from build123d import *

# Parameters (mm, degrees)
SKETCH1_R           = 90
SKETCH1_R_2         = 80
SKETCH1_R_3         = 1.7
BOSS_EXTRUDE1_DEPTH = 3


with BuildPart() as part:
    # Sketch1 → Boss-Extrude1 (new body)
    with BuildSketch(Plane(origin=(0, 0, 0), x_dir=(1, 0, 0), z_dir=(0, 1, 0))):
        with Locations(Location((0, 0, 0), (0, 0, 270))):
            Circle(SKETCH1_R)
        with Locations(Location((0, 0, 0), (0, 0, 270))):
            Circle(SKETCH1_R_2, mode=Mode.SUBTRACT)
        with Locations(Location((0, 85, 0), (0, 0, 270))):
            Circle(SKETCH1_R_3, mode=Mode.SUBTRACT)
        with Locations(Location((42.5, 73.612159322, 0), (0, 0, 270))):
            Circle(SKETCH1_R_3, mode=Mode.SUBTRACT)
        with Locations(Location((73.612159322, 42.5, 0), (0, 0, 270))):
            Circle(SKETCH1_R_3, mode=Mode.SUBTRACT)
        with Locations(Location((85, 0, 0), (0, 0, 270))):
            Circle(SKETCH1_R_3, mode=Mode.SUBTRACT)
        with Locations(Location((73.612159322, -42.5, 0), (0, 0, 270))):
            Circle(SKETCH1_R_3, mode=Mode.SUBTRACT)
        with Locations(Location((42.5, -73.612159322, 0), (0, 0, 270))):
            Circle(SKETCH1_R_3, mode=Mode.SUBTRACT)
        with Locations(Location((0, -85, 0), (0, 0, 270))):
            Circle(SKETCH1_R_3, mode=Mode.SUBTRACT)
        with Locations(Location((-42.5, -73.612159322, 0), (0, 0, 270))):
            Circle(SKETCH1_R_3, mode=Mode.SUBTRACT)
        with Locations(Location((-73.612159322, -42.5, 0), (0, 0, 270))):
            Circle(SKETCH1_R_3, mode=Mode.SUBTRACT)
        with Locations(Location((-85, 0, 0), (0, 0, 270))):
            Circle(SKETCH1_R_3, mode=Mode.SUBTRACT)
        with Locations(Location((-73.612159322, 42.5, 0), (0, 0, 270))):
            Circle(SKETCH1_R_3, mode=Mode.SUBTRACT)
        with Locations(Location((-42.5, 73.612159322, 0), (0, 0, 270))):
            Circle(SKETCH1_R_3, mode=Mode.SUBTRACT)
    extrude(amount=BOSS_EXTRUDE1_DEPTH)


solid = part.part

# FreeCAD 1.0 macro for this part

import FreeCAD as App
import Part
import Sketcher

doc = App.newDocument("Part")
body = doc.addObject("PartDesign::Body", "Body")

# Sketch on XZ plane
sketch1 = body.newObject("Sketcher::SketchObject", "Sketch")
sketch1.AttachmentSupport = (doc.getObject("XZ_Plane"), [""])
sketch1.MapMode = "FlatFace"
sketch1.addGeometry(Part.Circle(App.Vector(0, 0, 0), App.Vector(0, 0, 1), 90), False)
sketch1.addGeometry(Part.Circle(App.Vector(-73.612159, -42.5, 0), App.Vector(0, 0, 1), 1.7), False)
sketch1.addGeometry(Part.Circle(App.Vector(-42.5, -73.612159, 0), App.Vector(0, 0, 1), 1.7), False)
sketch1.addGeometry(Part.Circle(App.Vector(0, -85, 0), App.Vector(0, 0, 1), 1.7), False)
sketch1.addGeometry(Part.Circle(App.Vector(-85, 0, 0), App.Vector(0, 0, 1), 1.7), False)
sketch1.addGeometry(Part.Circle(App.Vector(-73.612159, 42.5, 0), App.Vector(0, 0, 1), 1.7), False)
sketch1.addGeometry(Part.Circle(App.Vector(-42.5, 73.612159, 0), App.Vector(0, 0, 1), 1.7), False)
sketch1.addGeometry(Part.Circle(App.Vector(42.5, -73.612159, 0), App.Vector(0, 0, 1), 1.7), False)
sketch1.addGeometry(Part.Circle(App.Vector(73.612159, -42.5, 0), App.Vector(0, 0, 1), 1.7), False)
sketch1.addGeometry(Part.Circle(App.Vector(85, 0, 0), App.Vector(0, 0, 1), 1.7), False)
sketch1.addGeometry(Part.Circle(App.Vector(0, 0, 0), App.Vector(0, 0, 1), 80), False)
sketch1.addGeometry(Part.Circle(App.Vector(0, 85, 0), App.Vector(0, 0, 1), 1.7), False)
sketch1.addGeometry(Part.Circle(App.Vector(42.5, 73.612159, 0), App.Vector(0, 0, 1), 1.7), False)
sketch1.addGeometry(Part.Circle(App.Vector(73.612159, 42.5, 0), App.Vector(0, 0, 1), 1.7), False)
sketch1.addConstraint(Sketcher.Constraint("Coincident", 0, 3, -1, 1))
sketch1.addConstraint(Sketcher.Constraint("Coincident", 10, 3, -1, 1))
sketch1.addConstraint(Sketcher.Constraint("Equal", 1, 2))
sketch1.addConstraint(Sketcher.Constraint("Equal", 2, 3))
sketch1.addConstraint(Sketcher.Constraint("Equal", 3, 4))
sketch1.addConstraint(Sketcher.Constraint("Equal", 4, 5))
sketch1.addConstraint(Sketcher.Constraint("Equal", 5, 6))
sketch1.addConstraint(Sketcher.Constraint("Equal", 6, 7))
sketch1.addConstraint(Sketcher.Constraint("Equal", 7, 8))
sketch1.addConstraint(Sketcher.Constraint("Equal", 8, 9))
sketch1.addConstraint(Sketcher.Constraint("Equal", 9, 11))
sketch1.addConstraint(Sketcher.Constraint("Equal", 11, 12))
sketch1.addConstraint(Sketcher.Constraint("Equal", 12, 13))
sketch1.addConstraint(Sketcher.Constraint("Symmetric", 6, 3, 7, 3, -1, 1))
sketch1.addConstraint(Sketcher.Constraint("Symmetric", 5, 3, 8, 3, -1, 1))
sketch1.addConstraint(Sketcher.Constraint("Symmetric", 4, 3, 9, 3, -1, 1))
sketch1.addConstraint(Sketcher.Constraint("Symmetric", 3, 3, 11, 3, -1, 1))
sketch1.addConstraint(Sketcher.Constraint("Symmetric", 2, 3, 12, 3, -1, 1))
sketch1.addConstraint(Sketcher.Constraint("Symmetric", 1, 3, 13, 3, -1, 1))
sketch1.addConstraint(Sketcher.Constraint("Symmetric", 2, 3, 7, 3, -2))
sketch1.addConstraint(Sketcher.Constraint("Symmetric", 1, 3, 8, 3, -2))
sketch1.addConstraint(Sketcher.Constraint("PointOnObject", 3, 3, -2))
sketch1.addConstraint(Sketcher.Constraint("PointOnObject", 4, 3, -1))
sketch1.addConstraint(Sketcher.Constraint("Diameter", 0, 180.0))
sketch1.addConstraint(Sketcher.Constraint("Diameter", 10, 160.0))
sketch1.addConstraint(Sketcher.Constraint("Diameter", 1, 3.4))
sketch1.addConstraint(Sketcher.Constraint("DistanceY", 3, 3, -1, 1, 85.0))
sketch1.addConstraint(Sketcher.Constraint("DistanceX", 4, 3, -1, 1, 85.0))
sketch1.addConstraint(Sketcher.Constraint("DistanceY", 1, 3, 5, 3, 85.0))
sketch1.addConstraint(Sketcher.Constraint("DistanceX", 2, 3, 7, 3, 85.0))
sketch1.addConstraint(Sketcher.Constraint("DistanceX", 1, 3, -1, 1, 73.612159))
sketch1.addConstraint(Sketcher.Constraint("DistanceY", 2, 3, -1, 1, 73.612159))
pad1 = body.newObject("PartDesign::Pad", "Pad")
pad1.Profile = sketch1
pad1.Length = 3
pad1.Reversed = True

doc.recompute()
